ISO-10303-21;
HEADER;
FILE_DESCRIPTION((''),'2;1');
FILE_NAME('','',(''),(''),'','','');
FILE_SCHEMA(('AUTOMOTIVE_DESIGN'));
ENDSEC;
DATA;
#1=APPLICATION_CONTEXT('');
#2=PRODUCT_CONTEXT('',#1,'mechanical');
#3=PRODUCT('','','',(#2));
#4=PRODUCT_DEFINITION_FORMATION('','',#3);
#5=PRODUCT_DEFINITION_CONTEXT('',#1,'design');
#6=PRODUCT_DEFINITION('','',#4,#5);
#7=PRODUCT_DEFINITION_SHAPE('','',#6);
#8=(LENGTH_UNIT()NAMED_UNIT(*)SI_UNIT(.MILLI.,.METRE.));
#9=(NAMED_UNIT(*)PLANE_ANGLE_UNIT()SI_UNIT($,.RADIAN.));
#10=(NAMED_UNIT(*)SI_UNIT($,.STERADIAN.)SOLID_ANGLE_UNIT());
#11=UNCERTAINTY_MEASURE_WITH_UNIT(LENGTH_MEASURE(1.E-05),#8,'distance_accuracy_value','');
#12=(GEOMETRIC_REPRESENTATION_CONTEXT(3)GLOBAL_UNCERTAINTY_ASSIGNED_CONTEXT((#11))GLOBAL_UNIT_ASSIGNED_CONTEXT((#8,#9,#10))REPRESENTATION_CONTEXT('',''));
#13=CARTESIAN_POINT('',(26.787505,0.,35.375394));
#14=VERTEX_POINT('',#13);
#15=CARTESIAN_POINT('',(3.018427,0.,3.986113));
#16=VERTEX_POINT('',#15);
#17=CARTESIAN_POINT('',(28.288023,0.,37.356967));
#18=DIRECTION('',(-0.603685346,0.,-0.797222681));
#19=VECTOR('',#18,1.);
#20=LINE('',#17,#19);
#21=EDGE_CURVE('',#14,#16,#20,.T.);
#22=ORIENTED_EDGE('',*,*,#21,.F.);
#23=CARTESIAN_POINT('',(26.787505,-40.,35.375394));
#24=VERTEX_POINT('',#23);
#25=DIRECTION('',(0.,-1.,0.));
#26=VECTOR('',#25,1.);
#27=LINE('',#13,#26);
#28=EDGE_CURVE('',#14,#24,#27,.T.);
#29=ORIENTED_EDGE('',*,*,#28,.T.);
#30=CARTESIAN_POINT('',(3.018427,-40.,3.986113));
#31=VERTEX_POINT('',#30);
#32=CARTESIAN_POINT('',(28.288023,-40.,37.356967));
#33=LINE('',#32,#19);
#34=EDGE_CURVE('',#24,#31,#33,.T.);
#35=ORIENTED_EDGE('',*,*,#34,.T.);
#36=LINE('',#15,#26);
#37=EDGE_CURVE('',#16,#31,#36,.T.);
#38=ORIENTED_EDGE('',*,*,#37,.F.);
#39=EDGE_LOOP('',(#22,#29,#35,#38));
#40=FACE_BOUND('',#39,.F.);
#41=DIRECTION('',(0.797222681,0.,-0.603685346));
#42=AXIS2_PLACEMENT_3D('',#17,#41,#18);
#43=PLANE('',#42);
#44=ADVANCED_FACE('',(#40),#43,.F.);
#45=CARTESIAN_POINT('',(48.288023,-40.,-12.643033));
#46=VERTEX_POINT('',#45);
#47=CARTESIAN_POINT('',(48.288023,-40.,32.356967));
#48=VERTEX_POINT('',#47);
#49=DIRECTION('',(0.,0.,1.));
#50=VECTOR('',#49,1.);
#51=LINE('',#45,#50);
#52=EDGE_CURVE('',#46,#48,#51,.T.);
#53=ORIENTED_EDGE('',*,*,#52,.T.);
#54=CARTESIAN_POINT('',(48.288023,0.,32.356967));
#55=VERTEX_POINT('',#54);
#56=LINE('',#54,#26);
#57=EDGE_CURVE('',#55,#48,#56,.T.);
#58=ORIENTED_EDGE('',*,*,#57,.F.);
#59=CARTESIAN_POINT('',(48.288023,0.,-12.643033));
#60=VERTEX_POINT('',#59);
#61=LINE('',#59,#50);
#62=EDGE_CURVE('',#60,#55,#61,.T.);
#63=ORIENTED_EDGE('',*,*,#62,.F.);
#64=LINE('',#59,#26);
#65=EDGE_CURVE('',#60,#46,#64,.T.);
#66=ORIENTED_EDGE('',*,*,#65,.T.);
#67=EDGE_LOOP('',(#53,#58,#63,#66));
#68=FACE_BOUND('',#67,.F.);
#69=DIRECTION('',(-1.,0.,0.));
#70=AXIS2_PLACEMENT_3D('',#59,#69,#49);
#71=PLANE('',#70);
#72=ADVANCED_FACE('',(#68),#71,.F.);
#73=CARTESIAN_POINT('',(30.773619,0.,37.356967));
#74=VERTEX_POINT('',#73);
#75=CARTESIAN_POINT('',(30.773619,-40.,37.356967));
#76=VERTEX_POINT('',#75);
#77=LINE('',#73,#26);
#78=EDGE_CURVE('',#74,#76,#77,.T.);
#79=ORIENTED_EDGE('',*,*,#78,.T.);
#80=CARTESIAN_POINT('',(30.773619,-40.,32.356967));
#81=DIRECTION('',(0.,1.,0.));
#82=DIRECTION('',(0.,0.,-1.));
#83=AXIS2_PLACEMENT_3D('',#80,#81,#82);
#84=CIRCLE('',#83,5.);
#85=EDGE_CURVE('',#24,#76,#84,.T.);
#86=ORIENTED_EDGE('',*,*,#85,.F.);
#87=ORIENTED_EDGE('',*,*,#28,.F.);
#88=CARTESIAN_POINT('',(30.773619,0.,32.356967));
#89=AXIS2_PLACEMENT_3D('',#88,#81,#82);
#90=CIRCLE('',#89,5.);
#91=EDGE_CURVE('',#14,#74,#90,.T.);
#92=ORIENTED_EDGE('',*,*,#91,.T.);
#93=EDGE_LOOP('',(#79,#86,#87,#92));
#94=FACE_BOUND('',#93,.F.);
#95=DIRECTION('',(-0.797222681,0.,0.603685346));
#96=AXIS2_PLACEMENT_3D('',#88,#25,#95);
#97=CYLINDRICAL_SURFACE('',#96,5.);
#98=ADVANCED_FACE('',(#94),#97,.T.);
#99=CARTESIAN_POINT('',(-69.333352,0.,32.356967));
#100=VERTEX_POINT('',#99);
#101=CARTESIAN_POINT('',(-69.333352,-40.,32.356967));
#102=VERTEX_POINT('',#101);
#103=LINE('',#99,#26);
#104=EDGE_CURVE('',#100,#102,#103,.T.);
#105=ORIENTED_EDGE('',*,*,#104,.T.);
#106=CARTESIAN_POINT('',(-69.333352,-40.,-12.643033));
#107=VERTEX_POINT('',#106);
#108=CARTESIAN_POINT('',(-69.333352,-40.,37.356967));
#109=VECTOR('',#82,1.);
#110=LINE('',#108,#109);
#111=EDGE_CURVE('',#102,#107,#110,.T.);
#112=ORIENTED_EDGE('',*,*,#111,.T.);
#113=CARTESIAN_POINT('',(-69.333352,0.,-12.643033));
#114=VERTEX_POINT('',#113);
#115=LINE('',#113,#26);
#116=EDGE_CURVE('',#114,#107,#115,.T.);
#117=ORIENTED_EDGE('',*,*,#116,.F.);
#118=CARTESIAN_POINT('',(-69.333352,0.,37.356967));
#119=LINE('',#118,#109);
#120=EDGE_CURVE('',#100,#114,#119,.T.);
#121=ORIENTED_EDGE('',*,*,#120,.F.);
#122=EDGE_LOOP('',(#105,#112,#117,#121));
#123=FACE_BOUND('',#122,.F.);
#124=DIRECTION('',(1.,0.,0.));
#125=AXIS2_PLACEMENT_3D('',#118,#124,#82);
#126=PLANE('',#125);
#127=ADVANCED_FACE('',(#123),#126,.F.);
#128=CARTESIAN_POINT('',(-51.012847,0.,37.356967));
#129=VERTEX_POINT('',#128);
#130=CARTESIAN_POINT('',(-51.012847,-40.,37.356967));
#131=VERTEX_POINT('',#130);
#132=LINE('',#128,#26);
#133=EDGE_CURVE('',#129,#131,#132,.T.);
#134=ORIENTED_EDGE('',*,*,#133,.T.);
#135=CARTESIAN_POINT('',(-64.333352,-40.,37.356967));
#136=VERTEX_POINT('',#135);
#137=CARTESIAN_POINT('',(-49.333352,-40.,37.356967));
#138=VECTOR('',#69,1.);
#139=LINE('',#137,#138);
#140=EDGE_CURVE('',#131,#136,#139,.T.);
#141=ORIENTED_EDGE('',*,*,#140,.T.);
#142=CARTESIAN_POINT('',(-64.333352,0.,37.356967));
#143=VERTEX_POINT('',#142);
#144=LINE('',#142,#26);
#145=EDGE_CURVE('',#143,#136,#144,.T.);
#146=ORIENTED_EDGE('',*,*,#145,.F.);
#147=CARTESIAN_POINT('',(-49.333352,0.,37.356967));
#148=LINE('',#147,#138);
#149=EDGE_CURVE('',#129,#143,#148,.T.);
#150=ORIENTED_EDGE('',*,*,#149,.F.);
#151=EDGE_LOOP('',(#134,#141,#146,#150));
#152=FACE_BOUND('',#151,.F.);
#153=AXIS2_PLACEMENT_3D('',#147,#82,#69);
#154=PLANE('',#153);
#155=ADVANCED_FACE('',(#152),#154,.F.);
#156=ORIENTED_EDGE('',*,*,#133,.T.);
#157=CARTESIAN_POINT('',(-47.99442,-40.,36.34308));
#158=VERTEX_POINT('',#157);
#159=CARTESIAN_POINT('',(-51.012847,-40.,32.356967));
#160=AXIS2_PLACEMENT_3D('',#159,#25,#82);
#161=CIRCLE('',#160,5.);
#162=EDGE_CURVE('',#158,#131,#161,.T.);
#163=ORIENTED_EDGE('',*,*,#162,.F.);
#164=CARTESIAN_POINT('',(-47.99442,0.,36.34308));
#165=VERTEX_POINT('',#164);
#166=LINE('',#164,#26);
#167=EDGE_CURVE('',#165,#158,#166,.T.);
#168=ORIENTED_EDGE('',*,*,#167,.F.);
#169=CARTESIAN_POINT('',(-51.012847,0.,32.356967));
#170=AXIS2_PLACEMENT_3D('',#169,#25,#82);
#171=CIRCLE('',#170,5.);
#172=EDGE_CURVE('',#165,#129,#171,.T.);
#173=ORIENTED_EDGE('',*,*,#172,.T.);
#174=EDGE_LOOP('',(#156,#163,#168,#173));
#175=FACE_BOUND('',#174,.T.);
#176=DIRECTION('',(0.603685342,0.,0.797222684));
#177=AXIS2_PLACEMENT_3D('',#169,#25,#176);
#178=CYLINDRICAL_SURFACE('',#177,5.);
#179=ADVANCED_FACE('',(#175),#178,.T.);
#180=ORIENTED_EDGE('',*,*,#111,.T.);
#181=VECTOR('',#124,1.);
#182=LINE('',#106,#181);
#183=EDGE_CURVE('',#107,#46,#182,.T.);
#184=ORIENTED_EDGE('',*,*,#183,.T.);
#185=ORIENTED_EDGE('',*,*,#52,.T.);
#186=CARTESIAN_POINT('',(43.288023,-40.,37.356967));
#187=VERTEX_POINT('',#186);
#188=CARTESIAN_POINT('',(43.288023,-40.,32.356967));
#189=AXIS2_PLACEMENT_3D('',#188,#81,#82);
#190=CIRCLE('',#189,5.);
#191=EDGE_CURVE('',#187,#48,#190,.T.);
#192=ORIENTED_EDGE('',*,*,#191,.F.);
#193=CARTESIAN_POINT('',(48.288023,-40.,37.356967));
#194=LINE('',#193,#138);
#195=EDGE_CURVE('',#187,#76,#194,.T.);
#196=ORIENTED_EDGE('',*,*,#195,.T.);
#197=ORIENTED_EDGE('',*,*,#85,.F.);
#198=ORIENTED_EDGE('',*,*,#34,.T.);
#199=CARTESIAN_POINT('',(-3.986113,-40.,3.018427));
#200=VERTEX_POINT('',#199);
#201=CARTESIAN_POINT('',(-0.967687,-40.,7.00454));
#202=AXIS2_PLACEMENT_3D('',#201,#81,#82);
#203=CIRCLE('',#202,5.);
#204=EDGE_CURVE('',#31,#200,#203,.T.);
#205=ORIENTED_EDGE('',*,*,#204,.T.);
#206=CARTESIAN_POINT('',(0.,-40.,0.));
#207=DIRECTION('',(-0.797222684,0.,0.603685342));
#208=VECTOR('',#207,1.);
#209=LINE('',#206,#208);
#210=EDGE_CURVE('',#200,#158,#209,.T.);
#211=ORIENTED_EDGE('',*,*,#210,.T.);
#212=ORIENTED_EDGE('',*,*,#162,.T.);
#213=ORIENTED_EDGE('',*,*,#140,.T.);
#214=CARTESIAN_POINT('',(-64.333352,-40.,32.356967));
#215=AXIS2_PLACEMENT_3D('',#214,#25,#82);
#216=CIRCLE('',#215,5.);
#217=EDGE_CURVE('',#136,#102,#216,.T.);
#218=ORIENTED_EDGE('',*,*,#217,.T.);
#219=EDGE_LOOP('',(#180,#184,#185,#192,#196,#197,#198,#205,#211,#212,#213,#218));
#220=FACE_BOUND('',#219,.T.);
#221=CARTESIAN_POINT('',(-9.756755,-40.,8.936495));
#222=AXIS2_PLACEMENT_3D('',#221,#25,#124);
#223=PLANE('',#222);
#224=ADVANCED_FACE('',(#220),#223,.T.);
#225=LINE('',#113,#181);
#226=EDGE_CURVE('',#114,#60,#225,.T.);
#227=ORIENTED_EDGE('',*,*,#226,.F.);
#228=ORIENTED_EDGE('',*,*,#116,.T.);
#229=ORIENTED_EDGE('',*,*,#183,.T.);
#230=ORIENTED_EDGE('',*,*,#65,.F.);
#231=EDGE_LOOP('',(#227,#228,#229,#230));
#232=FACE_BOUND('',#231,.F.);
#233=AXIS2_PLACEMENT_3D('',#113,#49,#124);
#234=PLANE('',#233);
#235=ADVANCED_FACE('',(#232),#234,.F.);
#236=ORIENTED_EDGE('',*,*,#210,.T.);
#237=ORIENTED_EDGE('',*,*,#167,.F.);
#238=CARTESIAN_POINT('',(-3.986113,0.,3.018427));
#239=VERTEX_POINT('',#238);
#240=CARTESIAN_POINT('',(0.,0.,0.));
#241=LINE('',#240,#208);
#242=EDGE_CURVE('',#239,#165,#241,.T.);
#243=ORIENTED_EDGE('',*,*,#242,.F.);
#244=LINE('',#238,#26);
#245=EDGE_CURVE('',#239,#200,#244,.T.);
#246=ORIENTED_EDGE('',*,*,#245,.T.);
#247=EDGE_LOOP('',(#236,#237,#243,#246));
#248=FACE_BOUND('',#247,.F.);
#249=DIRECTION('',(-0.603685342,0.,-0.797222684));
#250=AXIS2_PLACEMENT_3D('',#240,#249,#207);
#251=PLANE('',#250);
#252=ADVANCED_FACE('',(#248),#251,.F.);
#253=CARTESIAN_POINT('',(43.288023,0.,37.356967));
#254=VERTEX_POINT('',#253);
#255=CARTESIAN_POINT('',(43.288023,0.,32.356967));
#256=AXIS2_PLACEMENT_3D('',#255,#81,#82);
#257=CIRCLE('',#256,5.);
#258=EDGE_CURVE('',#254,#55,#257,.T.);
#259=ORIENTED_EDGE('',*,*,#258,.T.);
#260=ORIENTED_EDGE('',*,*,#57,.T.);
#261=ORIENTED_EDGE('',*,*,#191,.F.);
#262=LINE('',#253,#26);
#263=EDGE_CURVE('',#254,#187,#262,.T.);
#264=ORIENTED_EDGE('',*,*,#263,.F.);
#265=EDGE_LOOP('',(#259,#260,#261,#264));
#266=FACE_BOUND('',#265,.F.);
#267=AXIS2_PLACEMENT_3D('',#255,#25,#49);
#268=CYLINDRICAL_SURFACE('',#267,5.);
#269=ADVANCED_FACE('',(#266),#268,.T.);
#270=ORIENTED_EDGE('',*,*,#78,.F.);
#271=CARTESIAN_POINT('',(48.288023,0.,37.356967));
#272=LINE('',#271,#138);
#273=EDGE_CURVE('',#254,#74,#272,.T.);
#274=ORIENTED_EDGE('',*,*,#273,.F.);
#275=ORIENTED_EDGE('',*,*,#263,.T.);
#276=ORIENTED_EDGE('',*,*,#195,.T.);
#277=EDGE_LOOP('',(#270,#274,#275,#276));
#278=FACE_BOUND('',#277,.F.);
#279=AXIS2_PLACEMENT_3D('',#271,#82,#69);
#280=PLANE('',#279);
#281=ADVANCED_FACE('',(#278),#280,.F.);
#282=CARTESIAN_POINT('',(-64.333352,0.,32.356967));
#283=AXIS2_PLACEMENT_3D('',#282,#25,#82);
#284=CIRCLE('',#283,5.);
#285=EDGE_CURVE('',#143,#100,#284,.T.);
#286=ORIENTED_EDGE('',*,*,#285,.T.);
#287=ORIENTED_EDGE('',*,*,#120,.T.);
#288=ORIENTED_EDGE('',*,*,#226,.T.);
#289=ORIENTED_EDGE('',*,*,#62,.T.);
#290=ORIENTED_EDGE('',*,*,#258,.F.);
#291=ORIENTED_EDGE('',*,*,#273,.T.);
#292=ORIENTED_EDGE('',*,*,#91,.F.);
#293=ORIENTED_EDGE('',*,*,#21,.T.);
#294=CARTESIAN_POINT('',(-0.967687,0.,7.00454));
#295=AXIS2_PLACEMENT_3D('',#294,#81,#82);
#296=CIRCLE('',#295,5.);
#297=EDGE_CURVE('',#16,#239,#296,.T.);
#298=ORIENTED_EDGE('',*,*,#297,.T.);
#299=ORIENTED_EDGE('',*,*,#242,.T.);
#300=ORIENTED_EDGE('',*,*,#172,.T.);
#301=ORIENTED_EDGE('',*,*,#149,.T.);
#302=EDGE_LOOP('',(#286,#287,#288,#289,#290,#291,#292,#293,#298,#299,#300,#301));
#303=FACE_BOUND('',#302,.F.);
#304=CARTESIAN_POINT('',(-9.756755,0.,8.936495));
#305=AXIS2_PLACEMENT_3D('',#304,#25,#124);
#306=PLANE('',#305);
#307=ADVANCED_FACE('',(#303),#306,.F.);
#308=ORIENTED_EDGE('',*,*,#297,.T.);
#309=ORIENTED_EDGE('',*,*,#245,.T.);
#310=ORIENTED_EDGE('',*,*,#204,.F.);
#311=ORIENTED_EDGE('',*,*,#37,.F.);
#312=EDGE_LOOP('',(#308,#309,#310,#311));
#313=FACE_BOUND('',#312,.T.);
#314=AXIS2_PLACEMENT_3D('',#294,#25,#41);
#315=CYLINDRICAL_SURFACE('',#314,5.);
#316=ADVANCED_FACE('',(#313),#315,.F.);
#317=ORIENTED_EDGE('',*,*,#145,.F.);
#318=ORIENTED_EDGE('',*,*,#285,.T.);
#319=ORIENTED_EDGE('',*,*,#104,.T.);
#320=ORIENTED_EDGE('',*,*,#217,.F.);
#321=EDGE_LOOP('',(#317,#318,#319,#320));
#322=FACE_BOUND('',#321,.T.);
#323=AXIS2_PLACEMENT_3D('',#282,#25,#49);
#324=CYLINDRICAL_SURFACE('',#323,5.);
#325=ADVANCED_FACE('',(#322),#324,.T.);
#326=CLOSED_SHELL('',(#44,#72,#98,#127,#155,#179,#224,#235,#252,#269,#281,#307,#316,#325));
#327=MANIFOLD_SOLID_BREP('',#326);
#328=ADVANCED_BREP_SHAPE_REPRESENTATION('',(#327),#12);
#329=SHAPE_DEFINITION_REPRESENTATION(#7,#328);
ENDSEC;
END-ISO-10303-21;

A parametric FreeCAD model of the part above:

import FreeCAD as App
import Part
import Sketcher

V = App.Vector
Q = App.Units.Quantity


def edges_at(feature, points):
    """Names of the edges that pass closest to the given points."""
    edges = feature.Shape.Edges
    near = lambda p: min(range(len(edges)), key=lambda i: edges[i].distToShape(Part.Vertex(*p))[0])
    return sorted({f"Edge{near(p) + 1}" for p in points})


def add_polygon(sketch, points):
    """Adds a closed chain of lines whose ends are joined by coincident constraints."""
    first, n = sketch.GeometryCount, len(points)
    for a, b in zip(points, points[1:] + points[:1]):
        sketch.addGeometry(Part.LineSegment(App.Vector(*a, 0), App.Vector(*b, 0)), False)
    for i in range(n):
        sketch.addConstraint(Sketcher.Constraint("Coincident", first + i, 2, first + (i + 1) % n, 1))

doc = App.newDocument("Part")
params = doc.addObject("Spreadsheet::Sheet", "Params")
for row, (alias, value) in enumerate([
    ("sketch1_width", "20 mm"),
    ("sketch1_height", "50 mm"),
    ("pad1_length", "40 mm"),
    ("fillet_radius", "5 mm"),
    ("fillet2_radius", "5 mm"),
], start=1):
    params.set(f"A{row}", alias)
    params.set(f"B{row}", "=" + value)
    params.setAlias(f"B{row}", alias)

body = doc.addObject("PartDesign::Body", "Body")

# Sketch on XZ plane
sketch1 = body.newObject("Sketcher::SketchObject", "Sketch")
sketch1.AttachmentSupport = (doc.getObject("XZ_Plane"), [""])
sketch1.MapMode = "FlatFace"
add_polygon(sketch1, [(-49, 37), (-69, 37), (-69, -13), (48, -13), (48, 37), (28, 37), (0, 0)])  # lines 0-6
sketch1.addConstraint(Sketcher.Constraint("Horizontal", 0))
sketch1.addConstraint(Sketcher.Constraint("Vertical", 1))
sketch1.addConstraint(Sketcher.Constraint("Horizontal", 2))
sketch1.addConstraint(Sketcher.Constraint("Vertical", 3))
sketch1.addConstraint(Sketcher.Constraint("Horizontal", 4))
sketch1.addConstraint(Sketcher.Constraint("Coincident", 5, 2, -1, 1))
sketch1.addConstraint(Sketcher.Constraint("Perpendicular", 5, 6))
sketch1.addConstraint(Sketcher.Constraint("Horizontal", 0, 2, 3, 2))
sketch1.addConstraint(Sketcher.Constraint("Equal", 0, 4))
sketch1.addConstraint(Sketcher.Constraint("DistanceX", 0, 2, 0, 1, Q("20 mm")))
sketch1.addConstraint(Sketcher.Constraint("DistanceY", 1, 2, 1, 1, Q("50 mm")))
sketch1.addConstraint(Sketcher.Constraint("Distance", 6, Q("61.881521 mm")))
sketch1.addConstraint(Sketcher.Constraint("DistanceX", 2, 1, 2, 2, Q("117.621375 mm")))
sketch1.setExpression("Constraints[16]", "Params.sketch1_width")
sketch1.setExpression("Constraints[17]", "Params.sketch1_height")
pad1 = body.newObject("PartDesign::Pad", "Pad")
pad1.Profile = sketch1
pad1.setExpression("Length", "Params.pad1_length")
doc.recompute()

fillet = body.newObject("PartDesign::Fillet", "Fillet")
fillet.Base = (pad1, edges_at(pad1, [(0, -20, 0)]))
fillet.setExpression("Radius", "Params.fillet_radius")
doc.recompute()

fillet2 = body.newObject("PartDesign::Fillet", "Fillet001")
fillet2.Base = (fillet, edges_at(fillet, [
    (-69.333, -20, 37.357),
    (48.288, -20, 37.357),
    (-49.333, -20, 37.357),
    (28.288, -20, 37.357),
]))
fillet2.setExpression("Radius", "Params.fillet2_radius")

doc.recompute()
